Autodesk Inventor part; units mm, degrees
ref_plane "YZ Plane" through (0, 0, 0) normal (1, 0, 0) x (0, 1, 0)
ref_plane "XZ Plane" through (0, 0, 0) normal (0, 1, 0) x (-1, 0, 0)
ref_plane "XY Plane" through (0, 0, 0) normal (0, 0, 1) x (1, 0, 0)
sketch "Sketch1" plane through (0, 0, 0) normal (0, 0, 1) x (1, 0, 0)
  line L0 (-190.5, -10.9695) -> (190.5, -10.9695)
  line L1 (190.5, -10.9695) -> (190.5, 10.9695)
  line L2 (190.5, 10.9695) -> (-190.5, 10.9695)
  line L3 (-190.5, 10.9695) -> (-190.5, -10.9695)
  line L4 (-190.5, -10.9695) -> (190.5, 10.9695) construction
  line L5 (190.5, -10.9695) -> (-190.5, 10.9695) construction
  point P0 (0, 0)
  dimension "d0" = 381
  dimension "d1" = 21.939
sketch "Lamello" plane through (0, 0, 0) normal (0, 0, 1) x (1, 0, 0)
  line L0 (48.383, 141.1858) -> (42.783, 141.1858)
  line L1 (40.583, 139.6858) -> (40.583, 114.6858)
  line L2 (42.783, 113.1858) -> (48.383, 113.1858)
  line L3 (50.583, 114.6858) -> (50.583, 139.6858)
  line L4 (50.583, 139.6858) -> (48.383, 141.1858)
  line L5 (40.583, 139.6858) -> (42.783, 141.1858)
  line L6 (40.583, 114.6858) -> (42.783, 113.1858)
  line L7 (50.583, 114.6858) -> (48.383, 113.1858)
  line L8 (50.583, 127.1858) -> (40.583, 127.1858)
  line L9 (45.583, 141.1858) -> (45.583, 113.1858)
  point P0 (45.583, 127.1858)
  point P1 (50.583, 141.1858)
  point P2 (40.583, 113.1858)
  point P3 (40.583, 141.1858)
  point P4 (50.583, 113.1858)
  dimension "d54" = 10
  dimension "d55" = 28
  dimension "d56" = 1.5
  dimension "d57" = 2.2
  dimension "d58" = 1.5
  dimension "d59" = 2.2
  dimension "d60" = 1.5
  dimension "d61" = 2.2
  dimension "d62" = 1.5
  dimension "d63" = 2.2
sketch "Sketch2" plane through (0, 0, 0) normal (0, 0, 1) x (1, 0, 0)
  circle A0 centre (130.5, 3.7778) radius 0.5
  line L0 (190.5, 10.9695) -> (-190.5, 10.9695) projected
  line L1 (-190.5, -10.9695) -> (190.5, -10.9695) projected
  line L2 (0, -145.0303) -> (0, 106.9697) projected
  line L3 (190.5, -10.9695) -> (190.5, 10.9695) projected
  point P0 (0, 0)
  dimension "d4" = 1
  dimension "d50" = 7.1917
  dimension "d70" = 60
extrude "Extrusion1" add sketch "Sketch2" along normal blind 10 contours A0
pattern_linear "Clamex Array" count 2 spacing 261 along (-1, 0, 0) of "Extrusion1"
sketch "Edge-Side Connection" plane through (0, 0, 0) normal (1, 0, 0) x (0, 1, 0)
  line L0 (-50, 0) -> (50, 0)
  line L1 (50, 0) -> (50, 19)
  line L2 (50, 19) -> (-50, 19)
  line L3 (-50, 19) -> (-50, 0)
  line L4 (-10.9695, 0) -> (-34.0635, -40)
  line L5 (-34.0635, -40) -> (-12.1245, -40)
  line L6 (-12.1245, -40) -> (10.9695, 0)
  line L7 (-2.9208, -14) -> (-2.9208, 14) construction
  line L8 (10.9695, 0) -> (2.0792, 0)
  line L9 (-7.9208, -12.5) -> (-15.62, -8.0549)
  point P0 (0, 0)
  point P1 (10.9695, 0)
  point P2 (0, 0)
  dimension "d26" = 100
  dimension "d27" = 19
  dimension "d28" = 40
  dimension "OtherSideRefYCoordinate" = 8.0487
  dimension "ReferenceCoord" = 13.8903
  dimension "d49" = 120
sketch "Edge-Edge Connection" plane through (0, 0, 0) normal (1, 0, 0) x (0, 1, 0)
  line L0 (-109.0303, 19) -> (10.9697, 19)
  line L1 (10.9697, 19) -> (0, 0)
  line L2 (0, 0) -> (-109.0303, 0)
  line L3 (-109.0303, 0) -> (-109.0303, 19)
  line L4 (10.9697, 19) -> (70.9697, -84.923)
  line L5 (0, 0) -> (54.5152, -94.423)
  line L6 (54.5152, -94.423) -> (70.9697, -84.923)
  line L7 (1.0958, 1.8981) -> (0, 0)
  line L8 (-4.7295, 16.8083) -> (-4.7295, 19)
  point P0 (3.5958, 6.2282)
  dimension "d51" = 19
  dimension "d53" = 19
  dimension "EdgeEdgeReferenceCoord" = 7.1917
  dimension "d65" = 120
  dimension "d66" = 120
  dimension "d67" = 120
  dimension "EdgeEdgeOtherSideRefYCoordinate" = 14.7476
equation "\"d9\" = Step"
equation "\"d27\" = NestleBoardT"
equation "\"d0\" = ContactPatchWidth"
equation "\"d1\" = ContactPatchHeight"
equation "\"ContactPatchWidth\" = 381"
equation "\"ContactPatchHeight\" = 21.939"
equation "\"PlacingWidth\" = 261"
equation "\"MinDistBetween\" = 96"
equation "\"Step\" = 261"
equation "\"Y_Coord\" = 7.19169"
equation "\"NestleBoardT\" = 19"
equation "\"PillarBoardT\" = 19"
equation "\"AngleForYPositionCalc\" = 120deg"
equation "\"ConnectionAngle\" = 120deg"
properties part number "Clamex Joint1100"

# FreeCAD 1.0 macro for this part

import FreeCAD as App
import Part
import Sketcher

V = App.Vector
Q = App.Units.Quantity

doc = App.newDocument("Part")
body = doc.addObject("PartDesign::Body", "Body")
body.AllowCompound = True

# Sketch on XY plane
sketch1 = doc.addObject("Sketcher::SketchObject", "Sketch")
body.addObject(sketch1)
sketch1.AttachmentSupport = (doc.XY_Plane, [""])
sketch1.MapMode = "FlatFace"
sketch1.addGeometry(Part.Circle(V(130.5, 3.8, 0), V(0, 0, 1), 0.5), False)
sketch1.addConstraint([
    Sketcher.Constraint("Diameter", 0, Q("1 mm")),
    Sketcher.Constraint("DistanceX", -1, 1, 0, 3, Q("130.5 mm")),
    Sketcher.Constraint("DistanceY", -1, 1, 0, 3, Q("3.7778 mm")),
])
pad1 = doc.addObject("PartDesign::Pad", "Pad")
body.addObject(pad1)
pad1.Profile = sketch1
pad1.Length = 10
doc.recompute()

linearpattern = doc.addObject("PartDesign::LinearPattern", "LinearPattern")
body.addObject(linearpattern)
linearpattern.Originals = [pad1]
linearpattern.Direction = (doc.X_Axis, [""])
linearpattern.Mode = "offset"
linearpattern.Offset = 261
linearpattern.Occurrences = 2
linearpattern.Reversed = True
body.Tip = linearpattern

doc.recompute()
